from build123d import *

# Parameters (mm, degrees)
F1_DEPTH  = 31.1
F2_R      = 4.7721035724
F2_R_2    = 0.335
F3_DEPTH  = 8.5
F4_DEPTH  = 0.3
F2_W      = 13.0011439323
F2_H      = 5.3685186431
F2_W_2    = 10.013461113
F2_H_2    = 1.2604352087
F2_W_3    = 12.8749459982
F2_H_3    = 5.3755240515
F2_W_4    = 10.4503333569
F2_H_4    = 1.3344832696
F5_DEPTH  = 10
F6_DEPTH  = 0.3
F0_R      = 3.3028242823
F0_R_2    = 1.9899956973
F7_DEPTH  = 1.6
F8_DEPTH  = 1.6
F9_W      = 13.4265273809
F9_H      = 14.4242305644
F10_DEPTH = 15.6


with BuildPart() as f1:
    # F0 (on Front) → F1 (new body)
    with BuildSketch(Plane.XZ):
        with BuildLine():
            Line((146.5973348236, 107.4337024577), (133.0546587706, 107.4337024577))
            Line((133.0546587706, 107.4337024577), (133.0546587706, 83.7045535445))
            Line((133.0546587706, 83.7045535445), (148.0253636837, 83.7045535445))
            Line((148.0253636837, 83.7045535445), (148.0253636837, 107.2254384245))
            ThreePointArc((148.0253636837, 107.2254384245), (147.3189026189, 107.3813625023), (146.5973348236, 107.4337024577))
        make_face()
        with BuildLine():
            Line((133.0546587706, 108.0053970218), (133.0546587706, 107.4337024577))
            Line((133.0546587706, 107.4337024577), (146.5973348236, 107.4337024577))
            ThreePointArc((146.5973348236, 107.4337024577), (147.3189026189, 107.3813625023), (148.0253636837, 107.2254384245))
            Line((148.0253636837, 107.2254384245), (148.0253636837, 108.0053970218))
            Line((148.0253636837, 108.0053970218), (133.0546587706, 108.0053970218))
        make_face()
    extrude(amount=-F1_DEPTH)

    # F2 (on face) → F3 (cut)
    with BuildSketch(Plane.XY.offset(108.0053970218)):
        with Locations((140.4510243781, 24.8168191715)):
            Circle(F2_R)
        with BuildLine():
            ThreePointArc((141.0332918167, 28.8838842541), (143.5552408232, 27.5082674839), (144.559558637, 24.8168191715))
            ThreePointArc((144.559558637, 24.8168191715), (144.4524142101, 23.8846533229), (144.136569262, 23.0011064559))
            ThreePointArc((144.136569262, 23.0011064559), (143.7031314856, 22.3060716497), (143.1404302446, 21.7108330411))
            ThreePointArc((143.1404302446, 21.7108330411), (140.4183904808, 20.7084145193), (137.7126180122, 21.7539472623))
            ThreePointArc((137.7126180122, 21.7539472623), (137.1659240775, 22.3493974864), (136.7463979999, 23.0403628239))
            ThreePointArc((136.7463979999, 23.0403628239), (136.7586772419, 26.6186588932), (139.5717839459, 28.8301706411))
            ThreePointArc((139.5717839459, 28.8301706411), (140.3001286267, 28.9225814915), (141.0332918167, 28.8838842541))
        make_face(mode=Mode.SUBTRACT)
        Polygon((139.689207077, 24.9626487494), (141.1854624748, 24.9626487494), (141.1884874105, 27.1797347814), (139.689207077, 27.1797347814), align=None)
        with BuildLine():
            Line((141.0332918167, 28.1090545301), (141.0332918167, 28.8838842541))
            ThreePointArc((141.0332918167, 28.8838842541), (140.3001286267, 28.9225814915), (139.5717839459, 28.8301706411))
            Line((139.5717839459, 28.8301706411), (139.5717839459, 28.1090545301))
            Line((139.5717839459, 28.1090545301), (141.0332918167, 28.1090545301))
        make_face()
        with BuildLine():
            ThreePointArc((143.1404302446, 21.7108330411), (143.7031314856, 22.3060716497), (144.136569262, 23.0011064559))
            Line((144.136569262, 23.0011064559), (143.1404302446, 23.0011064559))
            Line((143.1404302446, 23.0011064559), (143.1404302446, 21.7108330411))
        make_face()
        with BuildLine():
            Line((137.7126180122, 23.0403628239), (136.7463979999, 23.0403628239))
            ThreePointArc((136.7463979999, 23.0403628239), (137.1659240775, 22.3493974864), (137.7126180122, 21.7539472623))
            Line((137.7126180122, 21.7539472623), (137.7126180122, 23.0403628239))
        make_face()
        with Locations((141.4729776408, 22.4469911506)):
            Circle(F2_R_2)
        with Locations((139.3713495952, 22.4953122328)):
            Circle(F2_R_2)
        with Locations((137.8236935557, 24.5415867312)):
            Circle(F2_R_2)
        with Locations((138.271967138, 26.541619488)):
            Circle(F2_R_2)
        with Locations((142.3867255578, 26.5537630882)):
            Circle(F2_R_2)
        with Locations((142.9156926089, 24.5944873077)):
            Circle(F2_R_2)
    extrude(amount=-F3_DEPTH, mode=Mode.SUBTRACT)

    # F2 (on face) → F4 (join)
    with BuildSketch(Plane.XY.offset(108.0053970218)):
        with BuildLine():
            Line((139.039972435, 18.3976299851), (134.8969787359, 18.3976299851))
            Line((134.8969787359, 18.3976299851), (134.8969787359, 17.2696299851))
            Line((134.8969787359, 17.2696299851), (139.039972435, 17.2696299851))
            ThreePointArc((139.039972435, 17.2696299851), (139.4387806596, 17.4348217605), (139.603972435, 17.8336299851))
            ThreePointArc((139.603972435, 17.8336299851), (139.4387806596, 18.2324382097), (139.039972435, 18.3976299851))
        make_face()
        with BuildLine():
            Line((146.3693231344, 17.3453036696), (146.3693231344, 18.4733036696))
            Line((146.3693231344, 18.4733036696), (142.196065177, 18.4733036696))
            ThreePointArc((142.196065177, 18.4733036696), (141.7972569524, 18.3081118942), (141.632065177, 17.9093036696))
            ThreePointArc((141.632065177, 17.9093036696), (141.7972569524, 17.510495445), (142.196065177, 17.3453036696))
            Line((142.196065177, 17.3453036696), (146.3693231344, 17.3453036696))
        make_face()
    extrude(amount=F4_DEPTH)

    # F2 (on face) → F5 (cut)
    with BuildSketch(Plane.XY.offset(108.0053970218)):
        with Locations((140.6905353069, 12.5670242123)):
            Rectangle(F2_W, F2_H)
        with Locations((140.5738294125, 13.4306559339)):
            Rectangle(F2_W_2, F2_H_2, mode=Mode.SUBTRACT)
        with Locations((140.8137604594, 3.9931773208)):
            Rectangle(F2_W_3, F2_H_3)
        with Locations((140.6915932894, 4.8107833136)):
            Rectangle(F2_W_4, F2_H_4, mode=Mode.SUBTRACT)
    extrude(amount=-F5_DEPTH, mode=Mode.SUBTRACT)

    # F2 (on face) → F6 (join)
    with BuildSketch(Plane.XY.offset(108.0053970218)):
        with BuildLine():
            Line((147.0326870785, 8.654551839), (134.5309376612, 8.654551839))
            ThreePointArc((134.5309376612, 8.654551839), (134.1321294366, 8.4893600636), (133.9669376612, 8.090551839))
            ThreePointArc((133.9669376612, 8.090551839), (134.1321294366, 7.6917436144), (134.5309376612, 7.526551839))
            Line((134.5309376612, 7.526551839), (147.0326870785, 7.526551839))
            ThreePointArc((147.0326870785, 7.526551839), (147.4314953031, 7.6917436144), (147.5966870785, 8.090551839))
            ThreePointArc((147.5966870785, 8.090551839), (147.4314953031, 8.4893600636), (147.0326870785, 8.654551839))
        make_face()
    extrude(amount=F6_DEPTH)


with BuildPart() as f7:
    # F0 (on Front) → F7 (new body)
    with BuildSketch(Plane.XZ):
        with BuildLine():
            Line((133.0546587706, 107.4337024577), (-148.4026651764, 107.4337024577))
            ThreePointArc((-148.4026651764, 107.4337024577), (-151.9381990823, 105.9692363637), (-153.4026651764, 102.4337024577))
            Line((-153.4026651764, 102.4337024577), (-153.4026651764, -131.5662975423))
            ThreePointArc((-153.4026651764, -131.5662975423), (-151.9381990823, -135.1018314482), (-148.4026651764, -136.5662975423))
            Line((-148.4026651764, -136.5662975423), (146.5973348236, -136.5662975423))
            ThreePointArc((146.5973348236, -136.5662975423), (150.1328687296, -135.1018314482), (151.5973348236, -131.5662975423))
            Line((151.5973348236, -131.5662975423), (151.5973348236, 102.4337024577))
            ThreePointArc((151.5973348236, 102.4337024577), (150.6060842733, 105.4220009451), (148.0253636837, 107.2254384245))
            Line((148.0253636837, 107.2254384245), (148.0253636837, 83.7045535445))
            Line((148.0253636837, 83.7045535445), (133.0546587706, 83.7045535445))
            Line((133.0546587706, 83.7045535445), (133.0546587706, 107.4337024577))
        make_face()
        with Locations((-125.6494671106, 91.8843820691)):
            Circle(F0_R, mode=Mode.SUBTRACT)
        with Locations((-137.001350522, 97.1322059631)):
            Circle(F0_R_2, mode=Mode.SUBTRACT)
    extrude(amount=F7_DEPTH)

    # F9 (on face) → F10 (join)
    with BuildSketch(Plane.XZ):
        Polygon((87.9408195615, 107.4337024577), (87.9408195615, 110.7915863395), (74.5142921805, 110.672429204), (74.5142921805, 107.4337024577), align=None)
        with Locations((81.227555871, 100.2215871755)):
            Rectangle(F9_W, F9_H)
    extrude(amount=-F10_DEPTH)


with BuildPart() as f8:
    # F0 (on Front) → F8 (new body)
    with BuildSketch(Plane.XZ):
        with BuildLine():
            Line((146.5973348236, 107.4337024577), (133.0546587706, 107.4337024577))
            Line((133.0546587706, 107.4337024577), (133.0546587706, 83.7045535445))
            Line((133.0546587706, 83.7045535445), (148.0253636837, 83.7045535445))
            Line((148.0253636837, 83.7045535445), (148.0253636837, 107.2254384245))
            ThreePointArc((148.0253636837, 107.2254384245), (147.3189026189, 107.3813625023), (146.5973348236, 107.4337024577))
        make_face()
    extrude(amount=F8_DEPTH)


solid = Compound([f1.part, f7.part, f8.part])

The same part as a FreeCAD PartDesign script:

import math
import FreeCAD as App
import Part
import Sketcher

V = App.Vector
Q = App.Units.Quantity

doc = App.newDocument("Part")
body = doc.addObject("PartDesign::Body", "Body")

sketch1 = body.newObject("Sketcher::SketchObject", "Sketch")
sketch1.AttachmentSupport = (doc.getObject("XZ_Plane"), [""])
sketch1.MapMode = "FlatFace"
sketch1.addGeometry(Part.LineSegment(V(133.054659, 83.704554, 0), V(148.025364, 83.704554, 0)), False)
sketch1.addGeometry(Part.LineSegment(V(148.025364, 83.704554, 0), V(148.025364, 108.005397, 0)), False)
sketch1.addGeometry(Part.LineSegment(V(148.025364, 108.005397, 0), V(133.054659, 108.005397, 0)), False)
sketch1.addGeometry(Part.LineSegment(V(133.054659, 108.005397, 0), V(133.054659, 83.704554, 0)), False)
sketch1.addConstraint(Sketcher.Constraint("Coincident", 0, 2, 1, 1))
sketch1.addConstraint(Sketcher.Constraint("Coincident", 1, 2, 2, 1))
sketch1.addConstraint(Sketcher.Constraint("Coincident", 2, 2, 3, 1))
sketch1.addConstraint(Sketcher.Constraint("Coincident", 3, 2, 0, 1))
sketch1.addConstraint(Sketcher.Constraint("Horizontal", 0))
sketch1.addConstraint(Sketcher.Constraint("Vertical", 1))
sketch1.addConstraint(Sketcher.Constraint("Horizontal", 2))
sketch1.addConstraint(Sketcher.Constraint("Vertical", 3))
sketch1.addConstraint(Sketcher.Constraint("DistanceX", 0, 1, 0, 2, Q("14.970705 mm")))
sketch1.addConstraint(Sketcher.Constraint("DistanceY", 1, 1, 1, 2, Q("24.300843 mm")))
sketch1.addConstraint(Sketcher.Constraint("DistanceX", -1, 1, 2, 2, Q("133.054659 mm")))
sketch1.addConstraint(Sketcher.Constraint("DistanceY", -1, 1, 0, 2, Q("83.704554 mm")))
pad1 = body.newObject("PartDesign::Pad", "Pad")
pad1.Profile = sketch1
pad1.Length = 31.1
pad1.Reversed = True

sketch2 = body.newObject("Sketcher::SketchObject", "Sketch001")
sketch2.AttachmentSupport = (doc.getObject("XY_Plane"), [""])
sketch2.MapMode = "FlatFace"
sketch2.AttachmentOffset = App.Placement(V(0, 0, 108.005397), App.Rotation())
sketch2.addGeometry(Part.Circle(V(140.451024, 24.816819, 0), V(0, 0, 1), 4.772104), False)
sketch2.addGeometry(Part.ArcOfCircle(Part.Circle(V(140.451024, 24.816819, 0), V(0, 0, 1), 4.108534), math.radians(102.357067), math.radians(205.618824)), False)
sketch2.addGeometry(Part.LineSegment(V(139.571784, 28.830171, 0), V(139.571784, 28.109055, 0)), False)
sketch2.addGeometry(Part.LineSegment(V(139.571784, 28.109055, 0), V(141.033292, 28.109055, 0)), False)
sketch2.addGeometry(Part.LineSegment(V(141.033292, 28.109055, 0), V(141.033292, 28.883884, 0)), False)
sketch2.addGeometry(Part.ArcOfCircle(Part.Circle(V(140.451024, 24.816819, 0), V(0, 0, 1), 4.108534), math.radians(0), math.radians(81.852529)), False)
sketch2.addGeometry(Part.ArcOfCircle(Part.Circle(V(140.451024, 24.816819, 0), V(0, 0, 1), 4.108534), math.radians(-26.227526), math.radians(0)), False)
sketch2.addGeometry(Part.LineSegment(V(144.136569, 23.001106, 0), V(143.14043, 23.001106, 0)), False)
sketch2.addGeometry(Part.LineSegment(V(143.14043, 23.001106, 0), V(143.14043, 21.710833, 0)), False)
sketch2.addGeometry(Part.ArcOfCircle(Part.Circle(V(140.451024, 24.816819, 0), V(0, 0, 1), 4.108534), math.radians(-131.798782), math.radians(-49.111423)), False)
sketch2.addGeometry(Part.LineSegment(V(137.712618, 21.753947, 0), V(137.712618, 23.040363, 0)), False)
sketch2.addGeometry(Part.LineSegment(V(137.712618, 23.040363, 0), V(136.746398, 23.040363, 0)), False)
sketch2.addGeometry(Part.LineSegment(V(139.689207, 24.962649, 0), V(141.185462, 24.962649, 0)), False)
sketch2.addGeometry(Part.LineSegment(V(141.185462, 24.962649, 0), V(141.188487, 27.179735, 0)), False)
sketch2.addGeometry(Part.LineSegment(V(141.188487, 27.179735, 0), V(139.689207, 27.179735, 0)), False)
sketch2.addGeometry(Part.LineSegment(V(139.689207, 27.179735, 0), V(139.689207, 24.962649, 0)), False)
sketch2.addGeometry(Part.Circle(V(141.472978, 22.446991, 0), V(0, 0, 1), 0.335), False)
sketch2.addGeometry(Part.Circle(V(139.37135, 22.495312, 0), V(0, 0, 1), 0.335), False)
sketch2.addGeometry(Part.Circle(V(137.823694, 24.541587, 0), V(0, 0, 1), 0.335), False)
sketch2.addGeometry(Part.Circle(V(138.271967, 26.541619, 0), V(0, 0, 1), 0.335), False)
sketch2.addGeometry(Part.Circle(V(142.386726, 26.553763, 0), V(0, 0, 1), 0.335), False)
sketch2.addGeometry(Part.Circle(V(142.915693, 24.594487, 0), V(0, 0, 1), 0.335), False)
sketch2.addConstraint(Sketcher.Constraint("Coincident", 1, 1, 2, 1))
sketch2.addConstraint(Sketcher.Constraint("Coincident", 2, 2, 3, 1))
sketch2.addConstraint(Sketcher.Constraint("Coincident", 3, 2, 4, 1))
sketch2.addConstraint(Sketcher.Constraint("Coincident", 4, 2, 5, 2))
sketch2.addConstraint(Sketcher.Constraint("Tangent", 5, 1, 6, 2))
sketch2.addConstraint(Sketcher.Constraint("Coincident", 6, 1, 7, 1))
sketch2.addConstraint(Sketcher.Constraint("Coincident", 7, 2, 8, 1))
sketch2.addConstraint(Sketcher.Constraint("Coincident", 8, 2, 9, 2))
sketch2.addConstraint(Sketcher.Constraint("Coincident", 9, 1, 10, 1))
sketch2.addConstraint(Sketcher.Constraint("Coincident", 10, 2, 11, 1))
sketch2.addConstraint(Sketcher.Constraint("Coincident", 11, 2, 1, 2))
sketch2.addConstraint(Sketcher.Constraint("Coincident", 12, 2, 13, 1))
sketch2.addConstraint(Sketcher.Constraint("Coincident", 13, 2, 14, 1))
sketch2.addConstraint(Sketcher.Constraint("Coincident", 14, 2, 15, 1))
sketch2.addConstraint(Sketcher.Constraint("Coincident", 15, 2, 12, 1))
sketch2.addConstraint(Sketcher.Constraint("Vertical", 2))
sketch2.addConstraint(Sketcher.Constraint("Horizontal", 3))
sketch2.addConstraint(Sketcher.Constraint("Vertical", 4))
sketch2.addConstraint(Sketcher.Constraint("Horizontal", 7))
sketch2.addConstraint(Sketcher.Constraint("Vertical", 8))
sketch2.addConstraint(Sketcher.Constraint("Vertical", 10))
sketch2.addConstraint(Sketcher.Constraint("Horizontal", 11))
sketch2.addConstraint(Sketcher.Constraint("Horizontal", 12))
sketch2.addConstraint(Sketcher.Constraint("Horizontal", 14))
sketch2.addConstraint(Sketcher.Constraint("Vertical", 15))
sketch2.addConstraint(Sketcher.Constraint("Coincident", 1, 3, 0, 3))
sketch2.addConstraint(Sketcher.Constraint("Coincident", 5, 3, 0, 3))
sketch2.addConstraint(Sketcher.Constraint("Coincident", 9, 3, 0, 3))
sketch2.addConstraint(Sketcher.Constraint("Equal", 1, 5))
sketch2.addConstraint(Sketcher.Constraint("Equal", 5, 6))
sketch2.addConstraint(Sketcher.Constraint("Equal", 6, 9))
sketch2.addConstraint(Sketcher.Constraint("Equal", 16, 17))
sketch2.addConstraint(Sketcher.Constraint("Equal", 17, 18))
sketch2.addConstraint(Sketcher.Constraint("Equal", 18, 19))
sketch2.addConstraint(Sketcher.Constraint("Equal", 19, 20))
sketch2.addConstraint(Sketcher.Constraint("Equal", 20, 21))
sketch2.addConstraint(Sketcher.Constraint("Horizontal", 9, 3, 5, 1))
sketch2.addConstraint(Sketcher.Constraint("Diameter", 16, Q("0.67 mm")))
sketch2.addConstraint(Sketcher.Constraint("Diameter", 0, Q("9.544207 mm")))
sketch2.addConstraint(Sketcher.Constraint("Radius", 1, Q("4.108534 mm")))
sketch2.addConstraint(Sketcher.Constraint("DistanceX", 7, 2, 7, 1, Q("0.996139 mm")))
sketch2.addConstraint(Sketcher.Constraint("DistanceX", 11, 2, 11, 1, Q("0.96622 mm")))
sketch2.addConstraint(Sketcher.Constraint("DistanceX", 14, 2, 14, 1, Q("1.49928 mm")))
sketch2.addConstraint(Sketcher.Constraint("DistanceY", 4, 1, 4, 2, Q("0.77483 mm")))
sketch2.addConstraint(Sketcher.Constraint("DistanceX", -1, 1, 11, 2, Q("136.746398 mm")))
sketch2.addConstraint(Sketcher.Constraint("DistanceY", 0, 3, 19, 3, Q("1.7248 mm")))
sketch2.addConstraint(Sketcher.Constraint("DistanceX", 6, 3, 20, 3, Q("1.935701 mm")))
sketch2.addConstraint(Sketcher.Constraint("Distance", 13, Q("2.217088 mm")))
sketch2.addConstraint(Sketcher.Constraint("DistanceX", 3, 1, 3, 2, Q("1.461508 mm")))
sketch2.addConstraint(Sketcher.Constraint("DistanceX", 12, 1, 12, 2, Q("1.496255 mm")))
sketch2.addConstraint(Sketcher.Constraint("DistanceY", 2, 2, 2, 1, Q("0.721116 mm")))
sketch2.addConstraint(Sketcher.Constraint("DistanceY", 8, 2, 8, 1, Q("1.290273 mm")))
sketch2.addConstraint(Sketcher.Constraint("DistanceY", 10, 1, 10, 2, Q("1.286416 mm")))
sketch2.addConstraint(Sketcher.Constraint("DistanceY", -1, 1, 0, 3, Q("24.816819 mm")))
sketch2.addConstraint(Sketcher.Constraint("DistanceY", -1, 1, 16, 3, Q("22.446991 mm")))
sketch2.addConstraint(Sketcher.Constraint("DistanceX", -1, 1, 17, 3, Q("139.37135 mm")))
sketch2.addConstraint(Sketcher.Constraint("DistanceY", -1, 1, 12, 2, Q("24.962649 mm")))
sketch2.addConstraint(Sketcher.Constraint("DistanceX", 17, 3, 16, 3, Q("2.101628 mm")))
sketch2.addConstraint(Sketcher.Constraint("DistanceY", 16, 3, 17, 3, Q("0.048321 mm")))
sketch2.addConstraint(Sketcher.Constraint("DistanceX", 18, 3, 1, 3, Q("2.627331 mm")))
sketch2.addConstraint(Sketcher.Constraint("DistanceX", 6, 3, 21, 3, Q("2.464668 mm")))
sketch2.addConstraint(Sketcher.Constraint("DistanceY", 21, 3, 6, 3, Q("0.222332 mm")))
sketch2.addConstraint(Sketcher.Constraint("DistanceY", 20, 3, 2, 2, Q("1.555291 mm")))
sketch2.addConstraint(Sketcher.Constraint("DistanceY", 9, 1, 18, 3, Q("2.787639 mm")))
sketch2.addConstraint(Sketcher.Constraint("DistanceX", 11, 2, 19, 3, Q("1.525569 mm")))
sketch2.addConstraint(Sketcher.Constraint("DistanceX", 6, 3, 12, 2, Q("0.734438 mm")))
pocket1 = body.newObject("PartDesign::Pocket", "Pocket")
pocket1.Profile = sketch2
pocket1.Length = 8.5

sketch3 = body.newObject("Sketcher::SketchObject", "Sketch002")
sketch3.AttachmentSupport = (doc.getObject("XY_Plane"), [""])
sketch3.MapMode = "FlatFace"
sketch3.AttachmentOffset = App.Placement(V(0, 0, 108.005397), App.Rotation())
sketch3.addGeometry(Part.LineSegment(V(139.039972, 18.39763, 0), V(134.896979, 18.39763, 0)), False)
sketch3.addGeometry(Part.LineSegment(V(134.896979, 18.39763, 0), V(134.896979, 17.26963, 0)), False)
sketch3.addGeometry(Part.LineSegment(V(134.896979, 17.26963, 0), V(139.039972, 17.26963, 0)), False)
sketch3.addGeometry(Part.ArcOfCircle(Part.Circle(V(139.039972, 17.83363, 0), V(0, 0, 1), 0.564), math.radians(-90), math.radians(0)), False)
sketch3.addGeometry(Part.ArcOfCircle(Part.Circle(V(139.039972, 17.83363, 0), V(0, 0, 1), 0.564), math.radians(0), math.radians(90)), False)
sketch3.addGeometry(Part.LineSegment(V(146.369323, 17.345304, 0), V(146.369323, 18.473304, 0)), False)
sketch3.addGeometry(Part.LineSegment(V(146.369323, 18.473304, 0), V(142.196065, 18.473304, 0)), False)
sketch3.addGeometry(Part.ArcOfCircle(Part.Circle(V(142.196065, 17.909304, 0), V(0, 0, 1), 0.564), math.radians(90), math.radians(180)), False)
sketch3.addGeometry(Part.ArcOfCircle(Part.Circle(V(142.196065, 17.909304, 0), V(0, 0, 1), 0.564), math.radians(180), math.radians(270)), False)
sketch3.addGeometry(Part.LineSegment(V(142.196065, 17.345304, 0), V(146.369323, 17.345304, 0)), False)
sketch3.addConstraint(Sketcher.Constraint("Coincident", 0, 2, 1, 1))
sketch3.addConstraint(Sketcher.Constraint("Coincident", 1, 2, 2, 1))
sketch3.addConstraint(Sketcher.Constraint("Tangent", 2, 2, 3, 1))
sketch3.addConstraint(Sketcher.Constraint("Tangent", 3, 2, 4, 1))
sketch3.addConstraint(Sketcher.Constraint("Tangent", 4, 2, 0, 1))
sketch3.addConstraint(Sketcher.Constraint("Coincident", 5, 2, 6, 1))
sketch3.addConstraint(Sketcher.Constraint("Tangent", 6, 2, 7, 1))
sketch3.addConstraint(Sketcher.Constraint("Tangent", 7, 2, 8, 1))
sketch3.addConstraint(Sketcher.Constraint("Tangent", 8, 2, 9, 1))
sketch3.addConstraint(Sketcher.Constraint("Coincident", 9, 2, 5, 1))
sketch3.addConstraint(Sketcher.Constraint("Horizontal", 0))
sketch3.addConstraint(Sketcher.Constraint("Vertical", 1))
sketch3.addConstraint(Sketcher.Constraint("Horizontal", 2))
sketch3.addConstraint(Sketcher.Constraint("Vertical", 5))
sketch3.addConstraint(Sketcher.Constraint("Horizontal", 6))
sketch3.addConstraint(Sketcher.Constraint("Horizontal", 9))
sketch3.addConstraint(Sketcher.Constraint("Equal", 3, 4))
sketch3.addConstraint(Sketcher.Constraint("Equal", 4, 7))
sketch3.addConstraint(Sketcher.Constraint("Equal", 7, 8))
sketch3.addConstraint(Sketcher.Constraint("Horizontal", 4, 3, 3, 2))
sketch3.addConstraint(Sketcher.Constraint("Horizontal", 8, 3, 7, 2))
sketch3.addConstraint(Sketcher.Constraint("Radius", 3, Q("0.564 mm")))
sketch3.addConstraint(Sketcher.Constraint("DistanceX", 0, 2, 0, 1, Q("4.142994 mm")))
sketch3.addConstraint(Sketcher.Constraint("DistanceX", 6, 2, 6, 1, Q("4.173258 mm")))
sketch3.addConstraint(Sketcher.Constraint("DistanceY", -1, 1, 3, 3, Q("17.83363 mm")))
sketch3.addConstraint(Sketcher.Constraint("DistanceX", -1, 1, 0, 2, Q("134.896979 mm")))
sketch3.addConstraint(Sketcher.Constraint("DistanceX", 3, 2, 5, 2, Q("6.765351 mm")))
sketch3.addConstraint(Sketcher.Constraint("DistanceY", -1, 1, 7, 3, Q("17.909304 mm")))
pad2 = body.newObject("PartDesign::Pad", "Pad001")
pad2.Profile = sketch3
pad2.Length = 0.3

sketch4 = body.newObject("Sketcher::SketchObject", "Sketch003")
sketch4.AttachmentSupport = (doc.getObject("XY_Plane"), [""])
sketch4.MapMode = "FlatFace"
sketch4.AttachmentOffset = App.Placement(V(0, 0, 108.005397), App.Rotation())
sketch4.addGeometry(Part.LineSegment(V(134.189963, 15.251284, 0), V(134.189963, 9.882765, 0)), False)
sketch4.addGeometry(Part.LineSegment(V(134.189963, 9.882765, 0), V(147.191107, 9.882765, 0)), False)
sketch4.addGeometry(Part.LineSegment(V(147.191107, 9.882765, 0), V(147.191107, 15.251284, 0)), False)
sketch4.addGeometry(Part.LineSegment(V(147.191107, 15.251284, 0), V(134.189963, 15.251284, 0)), False)
sketch4.addGeometry(Part.LineSegment(V(145.58056, 12.800438, 0), V(135.567099, 12.800438, 0)), False)
sketch4.addGeometry(Part.LineSegment(V(135.567099, 12.800438, 0), V(135.567099, 14.060874, 0)), False)
sketch4.addGeometry(Part.LineSegment(V(135.567099, 14.060874, 0), V(145.58056, 14.060874, 0)), False)
sketch4.addGeometry(Part.LineSegment(V(145.58056, 14.060874, 0), V(145.58056, 12.800438, 0)), False)
sketch4.addGeometry(Part.LineSegment(V(134.376287, 6.680939, 0), V(134.376287, 1.305415, 0)), False)
sketch4.addGeometry(Part.LineSegment(V(134.376287, 1.305415, 0), V(147.251233, 1.305415, 0)), False)
sketch4.addGeometry(Part.LineSegment(V(147.251233, 1.305415, 0), V(147.251233, 6.680939, 0)), False)
sketch4.addGeometry(Part.LineSegment(V(147.251233, 6.680939, 0), V(134.376287, 6.680939, 0)), False)
sketch4.addGeometry(Part.LineSegment(V(145.91676, 4.143542, 0), V(135.466427, 4.143542, 0)), False)
sketch4.addGeometry(Part.LineSegment(V(135.466427, 4.143542, 0), V(135.466427, 5.478025, 0)), False)
sketch4.addGeometry(Part.LineSegment(V(135.466427, 5.478025, 0), V(145.91676, 5.478025, 0)), False)
sketch4.addGeometry(Part.LineSegment(V(145.91676, 5.478025, 0), V(145.91676, 4.143542, 0)), False)
sketch4.addConstraint(Sketcher.Constraint("Coincident", 0, 2, 1, 1))
sketch4.addConstraint(Sketcher.Constraint("Coincident", 1, 2, 2, 1))
sketch4.addConstraint(Sketcher.Constraint("Coincident", 2, 2, 3, 1))
sketch4.addConstraint(Sketcher.Constraint("Coincident", 3, 2, 0, 1))
sketch4.addConstraint(Sketcher.Constraint("Coincident", 4, 2, 5, 1))
sketch4.addConstraint(Sketcher.Constraint("Coincident", 5, 2, 6, 1))
sketch4.addConstraint(Sketcher.Constraint("Coincident", 6, 2, 7, 1))
sketch4.addConstraint(Sketcher.Constraint("Coincident", 7, 2, 4, 1))
sketch4.addConstraint(Sketcher.Constraint("Coincident", 8, 2, 9, 1))
sketch4.addConstraint(Sketcher.Constraint("Coincident", 9, 2, 10, 1))
sketch4.addConstraint(Sketcher.Constraint("Coincident", 10, 2, 11, 1))
sketch4.addConstraint(Sketcher.Constraint("Coincident", 11, 2, 8, 1))
sketch4.addConstraint(Sketcher.Constraint("Coincident", 12, 2, 13, 1))
sketch4.addConstraint(Sketcher.Constraint("Coincident", 13, 2, 14, 1))
sketch4.addConstraint(Sketcher.Constraint("Coincident", 14, 2, 15, 1))
sketch4.addConstraint(Sketcher.Constraint("Coincident", 15, 2, 12, 1))
sketch4.addConstraint(Sketcher.Constraint("Vertical", 0))
sketch4.addConstraint(Sketcher.Constraint("Horizontal", 1))
sketch4.addConstraint(Sketcher.Constraint("Vertical", 2))
sketch4.addConstraint(Sketcher.Constraint("Horizontal", 3))
sketch4.addConstraint(Sketcher.Constraint("Horizontal", 4))
sketch4.addConstraint(Sketcher.Constraint("Vertical", 5))
sketch4.addConstraint(Sketcher.Constraint("Horizontal", 6))
sketch4.addConstraint(Sketcher.Constraint("Vertical", 7))
sketch4.addConstraint(Sketcher.Constraint("Vertical", 8))
sketch4.addConstraint(Sketcher.Constraint("Horizontal", 9))
sketch4.addConstraint(Sketcher.Constraint("Vertical", 10))
sketch4.addConstraint(Sketcher.Constraint("Horizontal", 11))
sketch4.addConstraint(Sketcher.Constraint("Horizontal", 12))
sketch4.addConstraint(Sketcher.Constraint("Vertical", 13))
sketch4.addConstraint(Sketcher.Constraint("Horizontal", 14))
sketch4.addConstraint(Sketcher.Constraint("Vertical", 15))
sketch4.addConstraint(Sketcher.Constraint("DistanceX", 4, 2, 4, 1, Q("10.013461 mm")))
sketch4.addConstraint(Sketcher.Constraint("DistanceY", 0, 2, 0, 1, Q("5.368519 mm")))
sketch4.addConstraint(Sketcher.Constraint("DistanceX", -1, 1, 4, 2, Q("135.567099 mm")))
sketch4.addConstraint(Sketcher.Constraint("DistanceY", 10, 2, 7, 2, Q("6.119499 mm")))
sketch4.addConstraint(Sketcher.Constraint("DistanceX", 7, 2, 14, 2, Q("0.3362 mm")))
sketch4.addConstraint(Sketcher.Constraint("DistanceX", 1, 1, 1, 2, Q("13.001144 mm")))
sketch4.addConstraint(Sketcher.Constraint("DistanceX", 9, 1, 9, 2, Q("12.874946 mm")))
sketch4.addConstraint(Sketcher.Constraint("DistanceX", 12, 2, 12, 1, Q("10.450333 mm")))
sketch4.addConstraint(Sketcher.Constraint("DistanceY", 5, 1, 5, 2, Q("1.260435 mm")))
sketch4.addConstraint(Sketcher.Constraint("DistanceY", 8, 2, 8, 1, Q("5.375524 mm")))
sketch4.addConstraint(Sketcher.Constraint("DistanceY", 13, 1, 13, 2, Q("1.334483 mm")))
sketch4.addConstraint(Sketcher.Constraint("DistanceY", -1, 1, 4, 2, Q("12.800438 mm")))
sketch4.addConstraint(Sketcher.Constraint("DistanceY", -1, 1, 12, 2, Q("4.143542 mm")))
sketch4.addConstraint(Sketcher.Constraint("DistanceX", 4, 2, 2, 2, Q("11.624008 mm")))
sketch4.addConstraint(Sketcher.Constraint("DistanceY", 5, 2, 3, 2, Q("1.19041 mm")))
sketch4.addConstraint(Sketcher.Constraint("DistanceX", 8, 2, 4, 2, Q("1.190811 mm")))
pocket2 = body.newObject("PartDesign::Pocket", "Pocket001")
pocket2.Profile = sketch4
pocket2.Length = 10

sketch5 = body.newObject("Sketcher::SketchObject", "Sketch004")
sketch5.AttachmentSupport = (doc.getObject("XY_Plane"), [""])
sketch5.MapMode = "FlatFace"
sketch5.AttachmentOffset = App.Placement(V(0, 0, 108.005397), App.Rotation())
sketch5.addGeometry(Part.LineSegment(V(147.032687, 8.654552, 0), V(134.530938, 8.654552, 0)), False)
sketch5.addGeometry(Part.ArcOfCircle(Part.Circle(V(134.530938, 8.090552, 0), V(0, 0, 1), 0.564), math.radians(90), math.radians(180)), False)
sketch5.addGeometry(Part.ArcOfCircle(Part.Circle(V(134.530938, 8.090552, 0), V(0, 0, 1), 0.564), math.radians(180), math.radians(270)), False)
sketch5.addGeometry(Part.LineSegment(V(134.530938, 7.526552, 0), V(147.032687, 7.526552, 0)), False)
sketch5.addGeometry(Part.ArcOfCircle(Part.Circle(V(147.032687, 8.090552, 0), V(0, 0, 1), 0.564), math.radians(-90), math.radians(0)), False)
sketch5.addGeometry(Part.ArcOfCircle(Part.Circle(V(147.032687, 8.090552, 0), V(0, 0, 1), 0.564), math.radians(0), math.radians(90)), False)
sketch5.addConstraint(Sketcher.Constraint("Tangent", 0, 2, 1, 1))
sketch5.addConstraint(Sketcher.Constraint("Tangent", 1, 2, 2, 1))
sketch5.addConstraint(Sketcher.Constraint("Tangent", 2, 2, 3, 1))
sketch5.addConstraint(Sketcher.Constraint("Tangent", 3, 2, 4, 1))
sketch5.addConstraint(Sketcher.Constraint("Tangent", 4, 2, 5, 1))
sketch5.addConstraint(Sketcher.Constraint("Tangent", 5, 2, 0, 1))
sketch5.addConstraint(Sketcher.Constraint("Horizontal", 0))
sketch5.addConstraint(Sketcher.Constraint("Horizontal", 3))
sketch5.addConstraint(Sketcher.Constraint("Equal", 1, 2))
sketch5.addConstraint(Sketcher.Constraint("Equal", 2, 4))
sketch5.addConstraint(Sketcher.Constraint("Horizontal", 5, 3, 1, 2))
sketch5.addConstraint(Sketcher.Constraint("Horizontal", 1, 2, 4, 2))
sketch5.addConstraint(Sketcher.Constraint("Radius", 1, Q("0.564 mm")))
sketch5.addConstraint(Sketcher.Constraint("DistanceX", 0, 2, 0, 1, Q("12.501749 mm")))
sketch5.addConstraint(Sketcher.Constraint("DistanceY", -1, 1, 1, 3, Q("8.090552 mm")))
sketch5.addConstraint(Sketcher.Constraint("DistanceX", -1, 1, 1, 3, Q("134.530938 mm")))
pad3 = body.newObject("PartDesign::Pad", "Pad002")
pad3.Profile = sketch5
pad3.Length = 0.3
body2 = doc.addObject("PartDesign::Body", "Body001")

sketch6 = body2.newObject("Sketcher::SketchObject", "Sketch005")
sketch6.AttachmentSupport = (doc.getObject("XZ_Plane001"), [""])
sketch6.MapMode = "FlatFace"
sketch6.addGeometry(Part.LineSegment(V(133.054659, 107.433702, 0), V(-148.402665, 107.433702, 0)), False)
sketch6.addGeometry(Part.ArcOfCircle(Part.Circle(V(-148.402665, 102.433702, 0), V(0, 0, 1), 5), math.radians(90), math.radians(180)), False)
sketch6.addGeometry(Part.LineSegment(V(-153.402665, 102.433702, 0), V(-153.402665, -131.566298, 0)), False)
sketch6.addGeometry(Part.ArcOfCircle(Part.Circle(V(-148.402665, -131.566298, 0), V(0, 0, 1), 5), math.radians(180), math.radians(270)), False)
sketch6.addGeometry(Part.LineSegment(V(-148.402665, -136.566298, 0), V(146.597335, -136.566298, 0)), False)
sketch6.addGeometry(Part.ArcOfCircle(Part.Circle(V(146.597335, -131.566298, 0), V(0, 0, 1), 5), math.radians(-90), math.radians(0)), False)
sketch6.addGeometry(Part.LineSegment(V(151.597335, -131.566298, 0), V(151.597335, 102.433702, 0)), False)
sketch6.addGeometry(Part.ArcOfCircle(Part.Circle(V(146.597335, 102.433702, 0), V(0, 0, 1), 5), math.radians(0), math.radians(73.404938)), False)
sketch6.addGeometry(Part.LineSegment(V(148.025364, 107.225438, 0), V(148.025364, 83.704554, 0)), False)
sketch6.addGeometry(Part.LineSegment(V(148.025364, 83.704554, 0), V(133.054659, 83.704554, 0)), False)
sketch6.addGeometry(Part.LineSegment(V(133.054659, 83.704554, 0), V(133.054659, 107.433702, 0)), False)
sketch6.addGeometry(Part.Circle(V(-125.649467, 91.884382, 0), V(0, 0, 1), 3.302824), False)
sketch6.addGeometry(Part.Circle(V(-137.001351, 97.132206, 0), V(0, 0, 1), 1.989996), False)
sketch6.addConstraint(Sketcher.Constraint("Tangent", 0, 2, 1, 1))
sketch6.addConstraint(Sketcher.Constraint("Tangent", 1, 2, 2, 1))
sketch6.addConstraint(Sketcher.Constraint("Tangent", 2, 2, 3, 1))
sketch6.addConstraint(Sketcher.Constraint("Tangent", 3, 2, 4, 1))
sketch6.addConstraint(Sketcher.Constraint("Tangent", 4, 2, 5, 1))
sketch6.addConstraint(Sketcher.Constraint("Tangent", 5, 2, 6, 1))
sketch6.addConstraint(Sketcher.Constraint("Tangent", 6, 2, 7, 1))
sketch6.addConstraint(Sketcher.Constraint("Coincident", 7, 2, 8, 1))
sketch6.addConstraint(Sketcher.Constraint("Coincident", 8, 2, 9, 1))
sketch6.addConstraint(Sketcher.Constraint("Coincident", 9, 2, 10, 1))
sketch6.addConstraint(Sketcher.Constraint("Coincident", 10, 2, 0, 1))
sketch6.addConstraint(Sketcher.Constraint("Horizontal", 0))
sketch6.addConstraint(Sketcher.Constraint("Vertical", 2))
sketch6.addConstraint(Sketcher.Constraint("Horizontal", 4))
sketch6.addConstraint(Sketcher.Constraint("Vertical", 6))
sketch6.addConstraint(Sketcher.Constraint("Vertical", 8))
sketch6.addConstraint(Sketcher.Constraint("Horizontal", 9))
sketch6.addConstraint(Sketcher.Constraint("Vertical", 10))
sketch6.addConstraint(Sketcher.Constraint("Equal", 1, 3))
sketch6.addConstraint(Sketcher.Constraint("Equal", 3, 5))
sketch6.addConstraint(Sketcher.Constraint("Equal", 5, 7))
sketch6.addConstraint(Sketcher.Constraint("Horizontal", 1, 3, 7, 3))
sketch6.addConstraint(Sketcher.Constraint("Radius", 1, Q("5 mm")))
sketch6.addConstraint(Sketcher.Constraint("DistanceX", 4, 1, 4, 2, Q("295 mm")))
sketch6.addConstraint(Sketcher.Constraint("DistanceY", 2, 2, 2, 1, Q("234 mm")))
sketch6.addConstraint(Sketcher.Constraint("Diameter", 11, Q("6.605649 mm")))
sketch6.addConstraint(Sketcher.Constraint("Diameter", 12, Q("3.979991 mm")))
sketch6.addConstraint(Sketcher.Constraint("DistanceY", 10, 1, 10, 2, Q("23.729149 mm")))
sketch6.addConstraint(Sketcher.Constraint("DistanceX", 1, 3, 11, 3, Q("22.753198 mm")))
sketch6.addConstraint(Sketcher.Constraint("DistanceX", 0, 2, 0, 1, Q("281.457324 mm")))
sketch6.addConstraint(Sketcher.Constraint("DistanceX", 9, 2, 9, 1, Q("14.970705 mm")))
sketch6.addConstraint(Sketcher.Constraint("DistanceX", 12, 3, -1, 1, Q("137.001351 mm")))
sketch6.addConstraint(Sketcher.Constraint("DistanceY", -1, 1, 7, 2, Q("107.225438 mm")))
sketch6.addConstraint(Sketcher.Constraint("DistanceX", -1, 1, 9, 2, Q("133.054659 mm")))
sketch6.addConstraint(Sketcher.Constraint("DistanceY", 11, 3, 1, 3, Q("10.54932 mm")))
sketch6.addConstraint(Sketcher.Constraint("DistanceY", -1, 1, 12, 3, Q("97.132206 mm")))
pad4 = body2.newObject("PartDesign::Pad", "Pad003")
pad4.Profile = sketch6
pad4.Length = 1.6

sketch7 = body2.newObject("Sketcher::SketchObject", "Sketch006")
sketch7.AttachmentSupport = (doc.getObject("XZ_Plane001"), [""])
sketch7.MapMode = "FlatFace"
sketch7.addGeometry(Part.LineSegment(V(87.94082, 107.433702, 0), V(87.94082, 110.791586, 0)), False)
sketch7.addGeometry(Part.LineSegment(V(87.94082, 110.791586, 0), V(74.514292, 110.672429, 0)), False)
sketch7.addGeometry(Part.LineSegment(V(74.514292, 110.672429, 0), V(74.514292, 107.433702, 0)), False)
sketch7.addGeometry(Part.LineSegment(V(74.514292, 107.433702, 0), V(74.514292, 93.009472, 0)), False)
sketch7.addGeometry(Part.LineSegment(V(74.514292, 93.009472, 0), V(87.94082, 93.009472, 0)), False)
sketch7.addGeometry(Part.LineSegment(V(87.94082, 93.009472, 0), V(87.94082, 107.433702, 0)), False)
sketch7.addConstraint(Sketcher.Constraint("Coincident", 0, 2, 1, 1))
sketch7.addConstraint(Sketcher.Constraint("Coincident", 1, 2, 2, 1))
sketch7.addConstraint(Sketcher.Constraint("Coincident", 2, 2, 3, 1))
sketch7.addConstraint(Sketcher.Constraint("Coincident", 3, 2, 4, 1))
sketch7.addConstraint(Sketcher.Constraint("Coincident", 4, 2, 5, 1))
sketch7.addConstraint(Sketcher.Constraint("Coincident", 5, 2, 0, 1))
sketch7.addConstraint(Sketcher.Constraint("Vertical", 0))
sketch7.addConstraint(Sketcher.Constraint("Vertical", 2))
sketch7.addConstraint(Sketcher.Constraint("Vertical", 3))
sketch7.addConstraint(Sketcher.Constraint("Horizontal", 4))
sketch7.addConstraint(Sketcher.Constraint("Vertical", 5))
sketch7.addConstraint(Sketcher.Constraint("Horizontal", 2, 2, 5, 2))
sketch7.addConstraint(Sketcher.Constraint("DistanceY", 3, 2, 3, 1, Q("14.424231 mm")))
sketch7.addConstraint(Sketcher.Constraint("DistanceX", 4, 1, 4, 2, Q("13.426527 mm")))
sketch7.addConstraint(Sketcher.Constraint("DistanceY", 0, 1, 0, 2, Q("3.357884 mm")))
sketch7.addConstraint(Sketcher.Constraint("DistanceY", 2, 2, 2, 1, Q("3.238727 mm")))
sketch7.addConstraint(Sketcher.Constraint("DistanceX", -1, 1, 0, 2, Q("87.94082 mm")))
sketch7.addConstraint(Sketcher.Constraint("DistanceY", -1, 1, 1, 2, Q("110.672429 mm")))
pad5 = body2.newObject("PartDesign::Pad", "Pad004")
pad5.Profile = sketch7
pad5.Length = 15.6
pad5.Reversed = True
body3 = doc.addObject("PartDesign::Body", "Body002")

sketch8 = body3.newObject("Sketcher::SketchObject", "Sketch007")
sketch8.AttachmentSupport = (doc.getObject("XZ_Plane002"), [""])
sketch8.MapMode = "FlatFace"
sketch8.addGeometry(Part.LineSegment(V(146.597335, 107.433702, 0), V(133.054659, 107.433702, 0)), False)
sketch8.addGeometry(Part.LineSegment(V(133.054659, 107.433702, 0), V(133.054659, 83.704554, 0)), False)
sketch8.addGeometry(Part.LineSegment(V(133.054659, 83.704554, 0), V(148.025364, 83.704554, 0)), False)
sketch8.addGeometry(Part.LineSegment(V(148.025364, 83.704554, 0), V(148.025364, 107.225438, 0)), False)
sketch8.addGeometry(Part.ArcOfCircle(Part.Circle(V(146.597335, 102.433702, 0), V(0, 0, 1), 5), math.radians(73.404938), math.radians(90)), False)
sketch8.addConstraint(Sketcher.Constraint("Coincident", 0, 2, 1, 1))
sketch8.addConstraint(Sketcher.Constraint("Coincident", 1, 2, 2, 1))
sketch8.addConstraint(Sketcher.Constraint("Coincident", 2, 2, 3, 1))
sketch8.addConstraint(Sketcher.Constraint("Coincident", 3, 2, 4, 1))
sketch8.addConstraint(Sketcher.Constraint("Tangent", 4, 2, 0, 1))
sketch8.addConstraint(Sketcher.Constraint("Horizontal", 0))
sketch8.addConstraint(Sketcher.Constraint("Vertical", 1))
sketch8.addConstraint(Sketcher.Constraint("Horizontal", 2))
sketch8.addConstraint(Sketcher.Constraint("Vertical", 3))
sketch8.addConstraint(Sketcher.Constraint("Radius", 4, Q("5 mm")))
sketch8.addConstraint(Sketcher.Constraint("DistanceY", 1, 2, 1, 1, Q("23.729149 mm")))
sketch8.addConstraint(Sketcher.Constraint("DistanceX", 0, 2, 0, 1, Q("13.542676 mm")))
sketch8.addConstraint(Sketcher.Constraint("DistanceX", 2, 1, 2, 2, Q("14.970705 mm")))
sketch8.addConstraint(Sketcher.Constraint("DistanceX", -1, 1, 0, 2, Q("133.054659 mm")))
sketch8.addConstraint(Sketcher.Constraint("DistanceY", -1, 1, 3, 2, Q("107.225438 mm")))
pad6 = body3.newObject("PartDesign::Pad", "Pad005")
pad6.Profile = sketch8
pad6.Length = 1.6

doc.recompute()
